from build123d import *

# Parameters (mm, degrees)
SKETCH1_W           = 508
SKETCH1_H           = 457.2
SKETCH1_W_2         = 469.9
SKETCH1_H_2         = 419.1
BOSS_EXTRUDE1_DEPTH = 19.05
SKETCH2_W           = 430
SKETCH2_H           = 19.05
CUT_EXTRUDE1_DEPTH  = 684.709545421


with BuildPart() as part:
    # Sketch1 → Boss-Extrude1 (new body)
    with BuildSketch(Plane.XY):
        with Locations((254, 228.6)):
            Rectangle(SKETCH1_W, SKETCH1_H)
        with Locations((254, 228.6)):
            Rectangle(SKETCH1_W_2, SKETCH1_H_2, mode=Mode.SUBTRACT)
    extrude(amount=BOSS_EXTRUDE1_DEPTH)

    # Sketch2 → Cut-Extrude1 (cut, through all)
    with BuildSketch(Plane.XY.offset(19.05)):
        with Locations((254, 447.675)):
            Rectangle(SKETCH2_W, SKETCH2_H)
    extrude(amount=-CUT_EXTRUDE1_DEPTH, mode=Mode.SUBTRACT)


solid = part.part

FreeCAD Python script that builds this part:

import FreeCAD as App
import Part
import Sketcher

V = App.Vector
Q = App.Units.Quantity


def add_polygon(sketch, points):
    """Adds a closed chain of lines whose ends are joined by coincident constraints."""
    first, n = sketch.GeometryCount, len(points)
    for a, b in zip(points, points[1:] + points[:1]):
        sketch.addGeometry(Part.LineSegment(App.Vector(*a, 0), App.Vector(*b, 0)), False)
    for i in range(n):
        sketch.addConstraint(Sketcher.Constraint("Coincident", first + i, 2, first + (i + 1) % n, 1))

doc = App.newDocument("Part")
body = doc.addObject("PartDesign::Body", "Body")

sketch1 = doc.addObject("Sketcher::SketchObject", "Sketch")
body.addObject(sketch1)
sketch1.AttachmentSupport = (doc.XY_Plane, [""])
sketch1.MapMode = "FlatFace"
add_polygon(sketch1, [(0, 457.2), (0, 0), (508, 0), (508, 457.2)])
add_polygon(sketch1, [(488.95, 19.05), (19.05, 19.05), (19.05, 438.15), (488.95, 438.15)])
sketch1.addConstraint([
    Sketcher.Constraint("Vertical", 0),
    Sketcher.Constraint("Horizontal", 1),
    Sketcher.Constraint("Vertical", 2),
    Sketcher.Constraint("Horizontal", 3),
    Sketcher.Constraint("Horizontal", 4),
    Sketcher.Constraint("Vertical", 5),
    Sketcher.Constraint("Horizontal", 6),
    Sketcher.Constraint("Vertical", 7),
    Sketcher.Constraint("Coincident", 0, 2, -1, 1),
    Sketcher.Constraint("DistanceX", 1, 1, 1, 2, Q("20 in")),
    Sketcher.Constraint("DistanceY", 0, 2, 0, 1, Q("18 in")),
    Sketcher.Constraint("DistanceX", 4, 2, 4, 1, Q("18.5 in")),
    Sketcher.Constraint("DistanceY", 5, 1, 5, 2, Q("16.5 in")),
    Sketcher.Constraint("DistanceX", -1, 1, 4, 2, Q("0.75 in")),
    Sketcher.Constraint("DistanceY", -1, 1, 4, 2, Q("0.75 in")),
])
pad1 = doc.addObject("PartDesign::Pad", "Pad")
body.addObject(pad1)
pad1.Profile = sketch1
pad1.Length = Q("0.75 in")

sketch2 = doc.addObject("Sketcher::SketchObject", "Sketch001")
body.addObject(sketch2)
sketch2.AttachmentSupport = (doc.XY_Plane, [""])
sketch2.MapMode = "FlatFace"
sketch2.AttachmentOffset = App.Placement(V(0, 0, 0.75 * 25.4), App.Rotation())
add_polygon(sketch2, [(39, 457.2), (39, 438.15), (469, 438.15), (469, 457.2)])
sketch2.addConstraint([
    Sketcher.Constraint("Vertical", 0),
    Sketcher.Constraint("Horizontal", 1),
    Sketcher.Constraint("Vertical", 2),
    Sketcher.Constraint("Horizontal", 3),
    Sketcher.Constraint("DistanceY", -1, 1, 2, 2, Q("18 in")),
    Sketcher.Constraint("DistanceY", 0, 2, 0, 1, Q("0.75 in")),
    Sketcher.Constraint("DistanceX", 1, 1, 1, 2, 430.0),
    Sketcher.Constraint("DistanceX", -1, 1, 0, 2, 39.0),
])
pocket1 = doc.addObject("PartDesign::Pocket", "Pocket")
body.addObject(pocket1)
pocket1.Profile = sketch2
pocket1.Type = "ThroughAll"

doc.recompute()
